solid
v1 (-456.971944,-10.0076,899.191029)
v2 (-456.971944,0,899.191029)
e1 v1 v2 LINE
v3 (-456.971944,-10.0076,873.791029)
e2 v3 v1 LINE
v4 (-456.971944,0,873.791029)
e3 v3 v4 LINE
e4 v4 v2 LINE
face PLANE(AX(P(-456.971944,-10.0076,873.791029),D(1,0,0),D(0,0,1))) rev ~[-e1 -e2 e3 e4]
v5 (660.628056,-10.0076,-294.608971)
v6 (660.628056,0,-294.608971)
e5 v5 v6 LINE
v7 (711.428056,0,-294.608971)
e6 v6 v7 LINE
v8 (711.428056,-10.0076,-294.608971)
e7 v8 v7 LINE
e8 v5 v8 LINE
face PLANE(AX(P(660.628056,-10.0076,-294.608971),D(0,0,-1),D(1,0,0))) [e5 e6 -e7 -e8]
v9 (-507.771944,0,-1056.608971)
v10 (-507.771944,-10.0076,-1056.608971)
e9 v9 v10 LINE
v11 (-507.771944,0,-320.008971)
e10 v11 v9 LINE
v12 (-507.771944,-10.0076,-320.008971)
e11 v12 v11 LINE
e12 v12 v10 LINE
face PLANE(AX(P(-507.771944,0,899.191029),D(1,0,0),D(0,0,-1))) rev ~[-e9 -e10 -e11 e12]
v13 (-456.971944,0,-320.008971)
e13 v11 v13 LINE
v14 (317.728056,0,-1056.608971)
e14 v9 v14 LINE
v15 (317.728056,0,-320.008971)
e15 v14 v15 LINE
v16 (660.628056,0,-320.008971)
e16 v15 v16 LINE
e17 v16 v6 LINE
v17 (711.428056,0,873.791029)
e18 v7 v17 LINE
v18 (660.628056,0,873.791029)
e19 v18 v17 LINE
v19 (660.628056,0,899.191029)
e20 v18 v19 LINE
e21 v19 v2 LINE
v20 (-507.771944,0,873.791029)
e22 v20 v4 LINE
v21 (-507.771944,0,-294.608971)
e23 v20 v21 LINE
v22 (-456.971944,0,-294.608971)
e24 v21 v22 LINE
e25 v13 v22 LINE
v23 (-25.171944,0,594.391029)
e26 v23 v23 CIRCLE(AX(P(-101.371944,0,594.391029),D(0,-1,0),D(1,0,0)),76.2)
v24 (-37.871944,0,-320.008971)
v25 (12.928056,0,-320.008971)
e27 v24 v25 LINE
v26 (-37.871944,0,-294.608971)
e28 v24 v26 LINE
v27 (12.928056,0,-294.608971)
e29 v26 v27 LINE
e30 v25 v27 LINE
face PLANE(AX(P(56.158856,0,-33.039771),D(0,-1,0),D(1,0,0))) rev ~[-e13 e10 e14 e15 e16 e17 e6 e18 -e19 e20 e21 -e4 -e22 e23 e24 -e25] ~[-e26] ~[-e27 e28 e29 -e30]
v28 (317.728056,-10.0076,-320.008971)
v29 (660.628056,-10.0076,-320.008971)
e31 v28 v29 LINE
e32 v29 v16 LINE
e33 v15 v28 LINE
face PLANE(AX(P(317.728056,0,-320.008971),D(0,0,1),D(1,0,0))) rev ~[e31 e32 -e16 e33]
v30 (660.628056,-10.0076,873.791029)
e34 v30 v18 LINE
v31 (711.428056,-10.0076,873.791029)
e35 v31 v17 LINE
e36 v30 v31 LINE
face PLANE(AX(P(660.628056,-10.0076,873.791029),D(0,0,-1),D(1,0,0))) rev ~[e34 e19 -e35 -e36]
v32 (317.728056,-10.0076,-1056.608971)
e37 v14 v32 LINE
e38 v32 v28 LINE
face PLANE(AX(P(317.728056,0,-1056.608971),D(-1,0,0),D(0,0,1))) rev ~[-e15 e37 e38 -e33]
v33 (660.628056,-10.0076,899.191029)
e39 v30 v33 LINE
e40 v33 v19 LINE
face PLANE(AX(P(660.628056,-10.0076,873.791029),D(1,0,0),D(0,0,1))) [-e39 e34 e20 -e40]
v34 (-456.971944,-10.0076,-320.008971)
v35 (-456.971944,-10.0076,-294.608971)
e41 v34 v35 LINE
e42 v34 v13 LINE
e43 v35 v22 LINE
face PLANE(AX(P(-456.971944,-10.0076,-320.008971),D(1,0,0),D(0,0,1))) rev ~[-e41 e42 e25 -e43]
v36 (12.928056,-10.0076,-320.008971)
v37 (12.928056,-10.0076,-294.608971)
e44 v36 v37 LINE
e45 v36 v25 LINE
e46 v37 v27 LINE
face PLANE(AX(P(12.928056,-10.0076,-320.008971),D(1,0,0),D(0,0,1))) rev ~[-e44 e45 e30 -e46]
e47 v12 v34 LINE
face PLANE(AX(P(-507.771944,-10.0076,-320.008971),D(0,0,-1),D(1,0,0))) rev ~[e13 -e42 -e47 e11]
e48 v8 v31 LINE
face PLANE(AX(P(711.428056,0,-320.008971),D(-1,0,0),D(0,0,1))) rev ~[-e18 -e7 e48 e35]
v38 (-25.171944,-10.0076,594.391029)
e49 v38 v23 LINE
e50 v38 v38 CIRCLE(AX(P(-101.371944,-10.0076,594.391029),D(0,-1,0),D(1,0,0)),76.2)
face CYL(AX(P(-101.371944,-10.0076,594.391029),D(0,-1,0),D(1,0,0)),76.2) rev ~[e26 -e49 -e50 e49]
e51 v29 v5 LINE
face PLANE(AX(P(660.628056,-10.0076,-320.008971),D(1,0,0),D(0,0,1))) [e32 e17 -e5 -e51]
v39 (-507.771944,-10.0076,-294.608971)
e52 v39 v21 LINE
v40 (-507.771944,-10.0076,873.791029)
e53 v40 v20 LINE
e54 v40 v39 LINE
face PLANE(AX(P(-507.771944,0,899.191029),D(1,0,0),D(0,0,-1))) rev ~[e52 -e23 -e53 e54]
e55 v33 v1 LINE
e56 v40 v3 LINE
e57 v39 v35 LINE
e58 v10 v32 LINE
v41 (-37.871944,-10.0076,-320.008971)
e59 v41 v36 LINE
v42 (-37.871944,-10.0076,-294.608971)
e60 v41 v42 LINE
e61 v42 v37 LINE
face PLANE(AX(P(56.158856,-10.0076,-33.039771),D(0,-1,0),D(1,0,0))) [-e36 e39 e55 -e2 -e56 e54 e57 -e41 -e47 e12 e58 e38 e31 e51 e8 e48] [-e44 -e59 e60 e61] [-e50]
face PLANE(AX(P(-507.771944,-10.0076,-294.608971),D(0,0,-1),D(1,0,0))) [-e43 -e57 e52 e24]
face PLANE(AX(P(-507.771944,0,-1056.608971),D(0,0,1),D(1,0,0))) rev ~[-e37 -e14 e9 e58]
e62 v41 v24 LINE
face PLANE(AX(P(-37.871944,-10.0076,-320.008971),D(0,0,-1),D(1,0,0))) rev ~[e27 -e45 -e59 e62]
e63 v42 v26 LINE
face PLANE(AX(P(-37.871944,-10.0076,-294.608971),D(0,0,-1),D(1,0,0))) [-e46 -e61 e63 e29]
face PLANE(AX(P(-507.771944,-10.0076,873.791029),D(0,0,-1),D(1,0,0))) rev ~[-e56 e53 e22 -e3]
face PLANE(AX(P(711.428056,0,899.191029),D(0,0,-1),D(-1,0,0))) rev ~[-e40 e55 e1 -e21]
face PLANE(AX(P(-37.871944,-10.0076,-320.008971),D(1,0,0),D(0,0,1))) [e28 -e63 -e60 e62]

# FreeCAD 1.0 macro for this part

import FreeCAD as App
import Part
import Sketcher
from FreeCAD import Vector
Q = App.Units.Quantity

doc = App.newDocument("Part")
body = doc.addObject("PartDesign::Body", "Body")

# Sketch on XZ plane
sketch1 = body.newObject("Sketcher::SketchObject", "Sketch")
sketch1.AttachmentSupport = (doc.getObject("XZ_Plane"), [""])
sketch1.MapMode = "FlatFace"
sketch1.addGeometry(Part.LineSegment(Vector(711, 899, 0), Vector(-508, 899, 0)), False)
sketch1.addGeometry(Part.LineSegment(Vector(-508, 899, 0), Vector(-508, -1057, 0)), False)
sketch1.addGeometry(Part.LineSegment(Vector(-508, -1057, 0), Vector(318, -1057, 0)), False)
sketch1.addGeometry(Part.LineSegment(Vector(318, -1057, 0), Vector(318, -320, 0)), False)
sketch1.addGeometry(Part.LineSegment(Vector(318, -320, 0), Vector(711, -320, 0)), False)
sketch1.addGeometry(Part.LineSegment(Vector(711, -320, 0), Vector(711, 899, 0)), False)
sketch1.addConstraint(Sketcher.Constraint("Coincident", 0, 2, 1, 1))
sketch1.addConstraint(Sketcher.Constraint("Coincident", 1, 2, 2, 1))
sketch1.addConstraint(Sketcher.Constraint("Coincident", 2, 2, 3, 1))
sketch1.addConstraint(Sketcher.Constraint("Coincident", 3, 2, 4, 1))
sketch1.addConstraint(Sketcher.Constraint("Coincident", 4, 2, 5, 1))
sketch1.addConstraint(Sketcher.Constraint("Coincident", 5, 2, 0, 1))
sketch1.addConstraint(Sketcher.Constraint("Horizontal", 0))
sketch1.addConstraint(Sketcher.Constraint("Vertical", 1))
sketch1.addConstraint(Sketcher.Constraint("Horizontal", 2))
sketch1.addConstraint(Sketcher.Constraint("Vertical", 3))
sketch1.addConstraint(Sketcher.Constraint("Horizontal", 4))
sketch1.addConstraint(Sketcher.Constraint("Vertical", 5))
sketch1.addConstraint(Sketcher.Constraint("Equal", 0, 5))
sketch1.addConstraint(Sketcher.Constraint("DistanceX", 0, 2, 0, 1, Q("48 in")))
sketch1.addConstraint(Sketcher.Constraint("DistanceY", 1, 2, 1, 1, Q("77 in")))
sketch1.addConstraint(Sketcher.Constraint("DistanceX", 2, 1, 2, 2, Q("32.5 in")))
sketch1.addConstraint(Sketcher.Constraint("DistanceY", -1, 1, 0, 2, Q("899.191029 mm")))
sketch1.addConstraint(Sketcher.Constraint("DistanceX", 0, 2, -1, 1, Q("507.771944 mm")))
pad1 = body.newObject("PartDesign::Pad", "Pad")
pad1.Profile = sketch1
pad1.Length = Q("0.394 in")

# Sketch on XZ plane
sketch2 = body.newObject("Sketcher::SketchObject", "Sketch001")
sketch2.AttachmentSupport = (doc.getObject("XZ_Plane"), [""])
sketch2.MapMode = "FlatFace"
sketch2.AttachmentOffset = App.Placement(Vector(0, 0, 0.394 * 25.4), App.Rotation())
sketch2.addGeometry(Part.LineSegment(Vector(661, 899, 0), Vector(661, 874, 0)), False)
sketch2.addGeometry(Part.LineSegment(Vector(661, 874, 0), Vector(711, 874, 0)), False)
sketch2.addGeometry(Part.LineSegment(Vector(711, 874, 0), Vector(711, 899, 0)), False)
sketch2.addGeometry(Part.LineSegment(Vector(711, 899, 0), Vector(661, 899, 0)), False)
sketch2.addGeometry(Part.LineSegment(Vector(-508, 899, 0), Vector(-508, 874, 0)), False)
sketch2.addGeometry(Part.LineSegment(Vector(-508, 874, 0), Vector(-457, 874, 0)), False)
sketch2.addGeometry(Part.LineSegment(Vector(-457, 874, 0), Vector(-457, 899, 0)), False)
sketch2.addGeometry(Part.LineSegment(Vector(-457, 899, 0), Vector(-508, 899, 0)), False)
sketch2.addGeometry(Part.LineSegment(Vector(661, -295, 0), Vector(661, -320, 0)), False)
sketch2.addGeometry(Part.LineSegment(Vector(661, -320, 0), Vector(711, -320, 0)), False)
sketch2.addGeometry(Part.LineSegment(Vector(711, -320, 0), Vector(711, -295, 0)), False)
sketch2.addGeometry(Part.LineSegment(Vector(711, -295, 0), Vector(661, -295, 0)), False)
sketch2.addGeometry(Part.LineSegment(Vector(-508, -295, 0), Vector(-508, -320, 0)), False)
sketch2.addGeometry(Part.LineSegment(Vector(-508, -320, 0), Vector(-457, -320, 0)), False)
sketch2.addGeometry(Part.LineSegment(Vector(-457, -320, 0), Vector(-457, -295, 0)), False)
sketch2.addGeometry(Part.LineSegment(Vector(-457, -295, 0), Vector(-508, -295, 0)), False)
sketch2.addGeometry(Part.LineSegment(Vector(-38, -295, 0), Vector(-38, -320, 0)), False)
sketch2.addGeometry(Part.LineSegment(Vector(-38, -320, 0), Vector(13, -320, 0)), False)
sketch2.addGeometry(Part.LineSegment(Vector(13, -320, 0), Vector(13, -295, 0)), False)
sketch2.addGeometry(Part.LineSegment(Vector(13, -295, 0), Vector(-38, -295, 0)), False)
sketch2.addConstraint(Sketcher.Constraint("Coincident", 0, 2, 1, 1))
sketch2.addConstraint(Sketcher.Constraint("Coincident", 1, 2, 2, 1))
sketch2.addConstraint(Sketcher.Constraint("Coincident", 2, 2, 3, 1))
sketch2.addConstraint(Sketcher.Constraint("Coincident", 3, 2, 0, 1))
sketch2.addConstraint(Sketcher.Constraint("Coincident", 4, 2, 5, 1))
sketch2.addConstraint(Sketcher.Constraint("Coincident", 5, 2, 6, 1))
sketch2.addConstraint(Sketcher.Constraint("Coincident", 6, 2, 7, 1))
sketch2.addConstraint(Sketcher.Constraint("Coincident", 7, 2, 4, 1))
sketch2.addConstraint(Sketcher.Constraint("Coincident", 8, 2, 9, 1))
sketch2.addConstraint(Sketcher.Constraint("Coincident", 9, 2, 10, 1))
sketch2.addConstraint(Sketcher.Constraint("Coincident", 10, 2, 11, 1))
sketch2.addConstraint(Sketcher.Constraint("Coincident", 11, 2, 8, 1))
sketch2.addConstraint(Sketcher.Constraint("Coincident", 12, 2, 13, 1))
sketch2.addConstraint(Sketcher.Constraint("Coincident", 13, 2, 14, 1))
sketch2.addConstraint(Sketcher.Constraint("Coincident", 14, 2, 15, 1))
sketch2.addConstraint(Sketcher.Constraint("Coincident", 15, 2, 12, 1))
sketch2.addConstraint(Sketcher.Constraint("Coincident", 16, 2, 17, 1))
sketch2.addConstraint(Sketcher.Constraint("Coincident", 17, 2, 18, 1))
sketch2.addConstraint(Sketcher.Constraint("Coincident", 18, 2, 19, 1))
sketch2.addConstraint(Sketcher.Constraint("Coincident", 19, 2, 16, 1))
sketch2.addConstraint(Sketcher.Constraint("Vertical", 0))
sketch2.addConstraint(Sketcher.Constraint("Horizontal", 1))
sketch2.addConstraint(Sketcher.Constraint("Vertical", 2))
sketch2.addConstraint(Sketcher.Constraint("Horizontal", 3))
sketch2.addConstraint(Sketcher.Constraint("Vertical", 4))
sketch2.addConstraint(Sketcher.Constraint("Horizontal", 5))
sketch2.addConstraint(Sketcher.Constraint("Vertical", 6))
sketch2.addConstraint(Sketcher.Constraint("Horizontal", 7))
sketch2.addConstraint(Sketcher.Constraint("Vertical", 8))
sketch2.addConstraint(Sketcher.Constraint("Horizontal", 9))
sketch2.addConstraint(Sketcher.Constraint("Vertical", 10))
sketch2.addConstraint(Sketcher.Constraint("Horizontal", 11))
sketch2.addConstraint(Sketcher.Constraint("Vertical", 12))
sketch2.addConstraint(Sketcher.Constraint("Horizontal", 13))
sketch2.addConstraint(Sketcher.Constraint("Vertical", 14))
sketch2.addConstraint(Sketcher.Constraint("Horizontal", 15))
sketch2.addConstraint(Sketcher.Constraint("Vertical", 16))
sketch2.addConstraint(Sketcher.Constraint("Horizontal", 17))
sketch2.addConstraint(Sketcher.Constraint("Vertical", 18))
sketch2.addConstraint(Sketcher.Constraint("Horizontal", 19))
sketch2.addConstraint(Sketcher.Constraint("Horizontal", 1, 2, 4, 2))
sketch2.addConstraint(Sketcher.Constraint("Horizontal", 3, 2, 6, 2))
sketch2.addConstraint(Sketcher.Constraint("Horizontal", 9, 2, 12, 2))
sketch2.addConstraint(Sketcher.Constraint("Horizontal", 11, 2, 14, 2))
sketch2.addConstraint(Sketcher.Constraint("Horizontal", 13, 2, 16, 2))
sketch2.addConstraint(Sketcher.Constraint("Horizontal", 15, 2, 18, 2))
sketch2.addConstraint(Sketcher.Constraint("Vertical", 3, 2, 8, 2))
sketch2.addConstraint(Sketcher.Constraint("Vertical", 2, 2, 9, 2))
sketch2.addConstraint(Sketcher.Constraint("Vertical", 7, 2, 12, 2))
sketch2.addConstraint(Sketcher.Constraint("Vertical", 6, 2, 13, 2))
sketch2.addConstraint(Sketcher.Constraint("Equal", 3, 5))
sketch2.addConstraint(Sketcher.Constraint("Equal", 15, 17))
sketch2.addConstraint(Sketcher.Constraint("Equal", 6, 8))
sketch2.addConstraint(Sketcher.Constraint("DistanceX", 1, 1, 1, 2, Q("2 in")))
sketch2.addConstraint(Sketcher.Constraint("DistanceY", 0, 2, 0, 1, Q("1 in")))
sketch2.addConstraint(Sketcher.Constraint("DistanceX", 4, 2, 0, 2, Q("46 in")))
sketch2.addConstraint(Sketcher.Constraint("DistanceY", 8, 2, 0, 2, Q("47 in")))
sketch2.addConstraint(Sketcher.Constraint("DistanceX", 13, 2, 16, 2, Q("16.5 in")))
sketch2.addConstraint(Sketcher.Constraint("DistanceY", -1, 1, 0, 2, Q("873.791029 mm")))
sketch2.addConstraint(Sketcher.Constraint("DistanceX", -1, 1, 0, 2, Q("660.628056 mm")))
pocket1 = body.newObject("PartDesign::Pocket", "Pocket")
pocket1.Profile = sketch2
pocket1.Type = "ThroughAll"

# Sketch on XZ plane
sketch3 = body.newObject("Sketcher::SketchObject", "Sketch002")
sketch3.AttachmentSupport = (doc.getObject("XZ_Plane"), [""])
sketch3.MapMode = "FlatFace"
sketch3.AttachmentOffset = App.Placement(Vector(0, 0, 0.394 * 25.4), App.Rotation())
sketch3.addGeometry(Part.Circle(Vector(-101, 594, 0), Vector(0, 0, 1), 76), False)
sketch3.addConstraint(Sketcher.Constraint("Diameter", 0, Q("6 in")))
sketch3.addConstraint(Sketcher.Constraint("DistanceY", -1, 1, 0, 3, Q("594.391029 mm")))
sketch3.addConstraint(Sketcher.Constraint("DistanceX", 0, 3, -1, 1, Q("101.371944 mm")))
pocket2 = body.newObject("PartDesign::Pocket", "Pocket001")
pocket2.Profile = sketch3
pocket2.Type = "ThroughAll"

doc.recompute()
